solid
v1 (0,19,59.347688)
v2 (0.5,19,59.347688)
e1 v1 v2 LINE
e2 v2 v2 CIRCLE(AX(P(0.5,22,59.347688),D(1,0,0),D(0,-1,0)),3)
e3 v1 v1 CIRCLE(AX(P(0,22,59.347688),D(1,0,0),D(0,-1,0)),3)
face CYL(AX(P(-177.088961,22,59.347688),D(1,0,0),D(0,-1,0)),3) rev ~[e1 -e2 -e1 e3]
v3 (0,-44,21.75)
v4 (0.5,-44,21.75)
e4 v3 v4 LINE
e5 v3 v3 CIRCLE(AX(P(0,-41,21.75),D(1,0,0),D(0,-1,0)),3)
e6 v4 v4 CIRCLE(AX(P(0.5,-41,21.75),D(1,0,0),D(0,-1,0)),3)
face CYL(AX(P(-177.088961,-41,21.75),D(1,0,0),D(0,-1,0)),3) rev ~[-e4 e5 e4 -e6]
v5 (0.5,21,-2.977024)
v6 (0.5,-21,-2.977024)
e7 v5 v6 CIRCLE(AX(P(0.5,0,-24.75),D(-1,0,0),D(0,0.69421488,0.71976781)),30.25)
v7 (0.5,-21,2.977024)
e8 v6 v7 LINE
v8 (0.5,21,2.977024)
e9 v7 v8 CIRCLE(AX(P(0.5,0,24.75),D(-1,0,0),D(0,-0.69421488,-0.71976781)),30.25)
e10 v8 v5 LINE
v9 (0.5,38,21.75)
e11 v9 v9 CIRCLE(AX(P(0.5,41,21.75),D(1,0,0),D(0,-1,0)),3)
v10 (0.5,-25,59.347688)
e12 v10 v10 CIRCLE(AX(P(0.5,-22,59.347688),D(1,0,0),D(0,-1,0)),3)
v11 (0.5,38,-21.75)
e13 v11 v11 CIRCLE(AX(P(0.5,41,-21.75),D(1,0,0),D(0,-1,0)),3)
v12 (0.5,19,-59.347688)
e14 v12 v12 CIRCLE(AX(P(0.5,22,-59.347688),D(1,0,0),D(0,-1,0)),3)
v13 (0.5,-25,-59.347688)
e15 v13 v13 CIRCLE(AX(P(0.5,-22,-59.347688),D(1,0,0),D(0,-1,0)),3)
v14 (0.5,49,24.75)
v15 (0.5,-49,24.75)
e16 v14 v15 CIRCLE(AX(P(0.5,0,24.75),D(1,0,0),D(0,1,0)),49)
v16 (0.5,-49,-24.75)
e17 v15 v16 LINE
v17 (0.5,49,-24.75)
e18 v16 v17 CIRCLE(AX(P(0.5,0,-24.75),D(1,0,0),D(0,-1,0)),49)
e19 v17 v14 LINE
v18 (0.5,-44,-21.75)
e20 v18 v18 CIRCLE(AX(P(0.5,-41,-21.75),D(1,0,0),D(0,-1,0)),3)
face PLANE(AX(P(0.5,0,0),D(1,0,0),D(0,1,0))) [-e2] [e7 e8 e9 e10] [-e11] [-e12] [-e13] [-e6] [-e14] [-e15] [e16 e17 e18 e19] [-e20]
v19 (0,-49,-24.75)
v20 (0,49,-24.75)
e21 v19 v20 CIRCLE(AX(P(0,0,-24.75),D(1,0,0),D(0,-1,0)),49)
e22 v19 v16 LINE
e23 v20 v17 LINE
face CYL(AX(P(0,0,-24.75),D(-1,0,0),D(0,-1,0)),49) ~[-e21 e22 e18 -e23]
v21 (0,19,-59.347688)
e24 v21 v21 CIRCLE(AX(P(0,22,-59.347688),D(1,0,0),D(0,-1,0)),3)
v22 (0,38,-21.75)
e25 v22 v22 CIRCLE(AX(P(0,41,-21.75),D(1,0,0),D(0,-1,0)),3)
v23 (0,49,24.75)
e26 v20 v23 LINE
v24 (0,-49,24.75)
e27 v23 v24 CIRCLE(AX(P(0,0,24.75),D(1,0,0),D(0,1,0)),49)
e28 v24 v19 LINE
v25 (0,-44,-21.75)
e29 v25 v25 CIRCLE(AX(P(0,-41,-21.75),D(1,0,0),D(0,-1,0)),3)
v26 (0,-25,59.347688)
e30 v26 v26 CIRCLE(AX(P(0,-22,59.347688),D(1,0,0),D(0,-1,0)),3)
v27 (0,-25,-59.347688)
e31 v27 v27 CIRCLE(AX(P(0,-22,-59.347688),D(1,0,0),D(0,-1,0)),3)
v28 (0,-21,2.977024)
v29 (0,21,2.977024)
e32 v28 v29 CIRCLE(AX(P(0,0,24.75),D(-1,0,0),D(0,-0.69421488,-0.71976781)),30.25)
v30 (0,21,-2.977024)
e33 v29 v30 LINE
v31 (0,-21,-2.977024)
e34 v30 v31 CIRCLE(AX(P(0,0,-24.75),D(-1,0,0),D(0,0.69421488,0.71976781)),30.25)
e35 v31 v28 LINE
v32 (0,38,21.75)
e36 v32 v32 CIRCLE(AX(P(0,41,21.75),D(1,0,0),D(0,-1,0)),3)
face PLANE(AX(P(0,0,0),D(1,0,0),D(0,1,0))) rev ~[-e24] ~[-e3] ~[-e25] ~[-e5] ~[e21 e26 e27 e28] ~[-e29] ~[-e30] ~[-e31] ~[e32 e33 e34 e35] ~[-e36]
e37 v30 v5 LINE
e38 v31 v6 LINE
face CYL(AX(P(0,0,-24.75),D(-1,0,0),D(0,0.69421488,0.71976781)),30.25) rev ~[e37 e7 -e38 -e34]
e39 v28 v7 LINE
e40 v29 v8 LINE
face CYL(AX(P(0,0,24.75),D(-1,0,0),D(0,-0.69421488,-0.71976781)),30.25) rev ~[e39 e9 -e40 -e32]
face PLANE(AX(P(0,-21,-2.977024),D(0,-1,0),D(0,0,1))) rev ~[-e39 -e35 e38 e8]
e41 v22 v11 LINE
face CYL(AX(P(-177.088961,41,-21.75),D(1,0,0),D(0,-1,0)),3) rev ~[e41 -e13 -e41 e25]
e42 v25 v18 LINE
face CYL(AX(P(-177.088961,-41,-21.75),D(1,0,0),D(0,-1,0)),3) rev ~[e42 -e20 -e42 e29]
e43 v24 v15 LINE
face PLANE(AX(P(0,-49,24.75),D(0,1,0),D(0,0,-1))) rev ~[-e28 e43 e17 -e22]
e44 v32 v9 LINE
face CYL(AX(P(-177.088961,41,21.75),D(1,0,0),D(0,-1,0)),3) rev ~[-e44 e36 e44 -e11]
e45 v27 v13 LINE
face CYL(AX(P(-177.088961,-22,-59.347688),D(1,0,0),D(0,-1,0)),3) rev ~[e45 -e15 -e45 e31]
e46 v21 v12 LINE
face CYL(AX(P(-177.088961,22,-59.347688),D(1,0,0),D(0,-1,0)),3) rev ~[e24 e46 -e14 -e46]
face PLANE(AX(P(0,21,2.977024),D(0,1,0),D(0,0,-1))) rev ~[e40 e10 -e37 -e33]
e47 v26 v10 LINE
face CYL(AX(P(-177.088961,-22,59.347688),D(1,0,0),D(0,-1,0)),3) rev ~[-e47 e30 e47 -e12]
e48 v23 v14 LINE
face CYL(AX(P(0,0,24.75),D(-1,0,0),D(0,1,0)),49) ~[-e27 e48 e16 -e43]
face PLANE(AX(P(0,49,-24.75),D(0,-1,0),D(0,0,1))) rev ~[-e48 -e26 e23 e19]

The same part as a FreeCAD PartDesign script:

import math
import FreeCAD as App
import Part
import Sketcher
from FreeCAD import Vector
Q = App.Units.Quantity

doc = App.newDocument("Part")
params = doc.addObject("Spreadsheet::Sheet", "Params")
for row, (alias, value) in enumerate([
    ("sketch1_radius", "49 mm"),
    ("sketch1_radius2", "30.25 mm"),
    ("sketch1_height", "49.5 mm"),
    ("pad1_length", "0.5 mm"),
    ("sketch2_diameter", "6 mm"),
    ("hole_diameter", "6 mm"),
], start=1):
    params.set(f"A{row}", alias)
    params.set(f"B{row}", "=" + value)
    params.setAlias(f"B{row}", alias)

body = doc.addObject("PartDesign::Body", "Body")

sketch1 = body.newObject("Sketcher::SketchObject", "Sketch")
sketch1.AttachmentSupport = (doc.getObject("YZ_Plane"), [""])
sketch1.MapMode = "FlatFace"
sketch1.addGeometry(Part.LineSegment(Vector(49, -25, 0), Vector(49, 25, 0)), False)
sketch1.addGeometry(Part.ArcOfCircle(Part.Circle(Vector(0, 25, 0), Vector(0, 0, 1), 49), math.radians(0), math.radians(180)), False)
sketch1.addGeometry(Part.LineSegment(Vector(-49, 25, 0), Vector(-49, -25, 0)), False)
sketch1.addGeometry(Part.ArcOfCircle(Part.Circle(Vector(0, -25, 0), Vector(0, 0, 1), 49), math.radians(180), math.radians(360)), False)
sketch1.addGeometry(Part.LineSegment(Vector(-21, -3, 0), Vector(-21, 3, 0)), False)
sketch1.addGeometry(Part.ArcOfCircle(Part.Circle(Vector(0, 25, 0), Vector(0, 0, 1), 30), math.radians(-46), math.radians(226)), False)
sketch1.addGeometry(Part.LineSegment(Vector(21, 3, 0), Vector(21, -3, 0)), False)
sketch1.addGeometry(Part.ArcOfCircle(Part.Circle(Vector(0, -25, 0), Vector(0, 0, 1), 30), math.radians(134), math.radians(406)), False)
sketch1.addConstraint(Sketcher.Constraint("Tangent", 0, 2, 1, 1))
sketch1.addConstraint(Sketcher.Constraint("Tangent", 1, 2, 2, 1))
sketch1.addConstraint(Sketcher.Constraint("Tangent", 2, 2, 3, 1))
sketch1.addConstraint(Sketcher.Constraint("Tangent", 3, 2, 0, 1))
sketch1.addConstraint(Sketcher.Constraint("Coincident", 4, 2, 5, 2))
sketch1.addConstraint(Sketcher.Constraint("Coincident", 5, 1, 6, 1))
sketch1.addConstraint(Sketcher.Constraint("Coincident", 6, 2, 7, 2))
sketch1.addConstraint(Sketcher.Constraint("Coincident", 7, 1, 4, 1))
sketch1.addConstraint(Sketcher.Constraint("Vertical", 0))
sketch1.addConstraint(Sketcher.Constraint("Vertical", 2))
sketch1.addConstraint(Sketcher.Constraint("Vertical", 4))
sketch1.addConstraint(Sketcher.Constraint("Vertical", 6))
sketch1.addConstraint(Sketcher.Constraint("Coincident", 5, 3, 1, 3))
sketch1.addConstraint(Sketcher.Constraint("Coincident", 7, 3, 3, 3))
sketch1.addConstraint(Sketcher.Constraint("Equal", 5, 7))
sketch1.addConstraint(Sketcher.Constraint("Symmetric", 1, 3, 3, 3, -1, 1))
sketch1.addConstraint(Sketcher.Constraint("Horizontal", 4, 2, 5, 1))
sketch1.addConstraint(Sketcher.Constraint("Radius", 1, Q("49 mm")))
sketch1.addConstraint(Sketcher.Constraint("Radius", 5, Q("30.25 mm")))
sketch1.addConstraint(Sketcher.Constraint("DistanceY", 0, 1, 0, 2, Q("49.5 mm")))
sketch1.addConstraint(Sketcher.Constraint("DistanceX", 4, 2, -1, 1, Q("21 mm")))
sketch1.setExpression("Constraints[17]", "Params.sketch1_radius")
sketch1.setExpression("Constraints[18]", "Params.sketch1_radius2")
sketch1.setExpression("Constraints[19]", "Params.sketch1_height")
pad1 = body.newObject("PartDesign::Pad", "Pad")
pad1.Profile = sketch1
pad1.setExpression("Length", "Params.pad1_length")

sketch2 = body.newObject("Sketcher::SketchObject", "Sketch001")
sketch2.AttachmentSupport = (doc.getObject("YZ_Plane"), [""])
sketch2.MapMode = "FlatFace"
sketch2.addGeometry(Part.Circle(Vector(22, -59.3, 0), Vector(0, 0, 1), 3), False)
sketch2.addGeometry(Part.Circle(Vector(-22, -59.3, 0), Vector(0, 0, 1), 3), False)
sketch2.addGeometry(Part.Circle(Vector(-41, -21.8, 0), Vector(0, 0, 1), 3), False)
sketch2.addGeometry(Part.Circle(Vector(-41, 21.8, 0), Vector(0, 0, 1), 3), False)
sketch2.addGeometry(Part.Circle(Vector(-22, 59.3, 0), Vector(0, 0, 1), 3), False)
sketch2.addGeometry(Part.Circle(Vector(22, 59.3, 0), Vector(0, 0, 1), 3), False)
sketch2.addGeometry(Part.Circle(Vector(41, 21.8, 0), Vector(0, 0, 1), 3), False)
sketch2.addGeometry(Part.Circle(Vector(41, -21.8, 0), Vector(0, 0, 1), 3), False)
sketch2.addConstraint(Sketcher.Constraint("Equal", 0, 1))
sketch2.addConstraint(Sketcher.Constraint("Equal", 1, 2))
sketch2.addConstraint(Sketcher.Constraint("Equal", 2, 3))
sketch2.addConstraint(Sketcher.Constraint("Equal", 3, 4))
sketch2.addConstraint(Sketcher.Constraint("Equal", 4, 5))
sketch2.addConstraint(Sketcher.Constraint("Equal", 5, 6))
sketch2.addConstraint(Sketcher.Constraint("Equal", 6, 7))
sketch2.addConstraint(Sketcher.Constraint("Symmetric", 0, 3, 4, 3, -1, 1))
sketch2.addConstraint(Sketcher.Constraint("Symmetric", 1, 3, 5, 3, -1, 1))
sketch2.addConstraint(Sketcher.Constraint("Symmetric", 2, 3, 6, 3, -1, 1))
sketch2.addConstraint(Sketcher.Constraint("Symmetric", 3, 3, 7, 3, -1, 1))
sketch2.addConstraint(Sketcher.Constraint("Symmetric", 0, 3, 1, 3, -2))
sketch2.addConstraint(Sketcher.Constraint("Symmetric", 3, 3, 6, 3, -2))
sketch2.addConstraint(Sketcher.Constraint("Diameter", 0, Q("6 mm")))
sketch2.addConstraint(Sketcher.Constraint("DistanceX", -1, 1, 0, 3, Q("22 mm")))
sketch2.addConstraint(Sketcher.Constraint("DistanceX", 2, 3, -1, 1, Q("41 mm")))
sketch2.addConstraint(Sketcher.Constraint("DistanceY", 2, 3, 3, 3, Q("43.5 mm")))
sketch2.addConstraint(Sketcher.Constraint("DistanceY", 1, 3, 3, 3, Q("81.097688 mm")))
sketch2.setExpression("Constraints[13]", "Params.sketch2_diameter")
doc.recompute()
hole = body.newObject("PartDesign::Hole", "Hole")
hole.Profile = sketch2
hole.ThreadType = "None"
hole.setExpression("Diameter", "Params.hole_diameter")
hole.DepthType = "ThroughAll"
hole.Reversed = True

doc.recompute()
